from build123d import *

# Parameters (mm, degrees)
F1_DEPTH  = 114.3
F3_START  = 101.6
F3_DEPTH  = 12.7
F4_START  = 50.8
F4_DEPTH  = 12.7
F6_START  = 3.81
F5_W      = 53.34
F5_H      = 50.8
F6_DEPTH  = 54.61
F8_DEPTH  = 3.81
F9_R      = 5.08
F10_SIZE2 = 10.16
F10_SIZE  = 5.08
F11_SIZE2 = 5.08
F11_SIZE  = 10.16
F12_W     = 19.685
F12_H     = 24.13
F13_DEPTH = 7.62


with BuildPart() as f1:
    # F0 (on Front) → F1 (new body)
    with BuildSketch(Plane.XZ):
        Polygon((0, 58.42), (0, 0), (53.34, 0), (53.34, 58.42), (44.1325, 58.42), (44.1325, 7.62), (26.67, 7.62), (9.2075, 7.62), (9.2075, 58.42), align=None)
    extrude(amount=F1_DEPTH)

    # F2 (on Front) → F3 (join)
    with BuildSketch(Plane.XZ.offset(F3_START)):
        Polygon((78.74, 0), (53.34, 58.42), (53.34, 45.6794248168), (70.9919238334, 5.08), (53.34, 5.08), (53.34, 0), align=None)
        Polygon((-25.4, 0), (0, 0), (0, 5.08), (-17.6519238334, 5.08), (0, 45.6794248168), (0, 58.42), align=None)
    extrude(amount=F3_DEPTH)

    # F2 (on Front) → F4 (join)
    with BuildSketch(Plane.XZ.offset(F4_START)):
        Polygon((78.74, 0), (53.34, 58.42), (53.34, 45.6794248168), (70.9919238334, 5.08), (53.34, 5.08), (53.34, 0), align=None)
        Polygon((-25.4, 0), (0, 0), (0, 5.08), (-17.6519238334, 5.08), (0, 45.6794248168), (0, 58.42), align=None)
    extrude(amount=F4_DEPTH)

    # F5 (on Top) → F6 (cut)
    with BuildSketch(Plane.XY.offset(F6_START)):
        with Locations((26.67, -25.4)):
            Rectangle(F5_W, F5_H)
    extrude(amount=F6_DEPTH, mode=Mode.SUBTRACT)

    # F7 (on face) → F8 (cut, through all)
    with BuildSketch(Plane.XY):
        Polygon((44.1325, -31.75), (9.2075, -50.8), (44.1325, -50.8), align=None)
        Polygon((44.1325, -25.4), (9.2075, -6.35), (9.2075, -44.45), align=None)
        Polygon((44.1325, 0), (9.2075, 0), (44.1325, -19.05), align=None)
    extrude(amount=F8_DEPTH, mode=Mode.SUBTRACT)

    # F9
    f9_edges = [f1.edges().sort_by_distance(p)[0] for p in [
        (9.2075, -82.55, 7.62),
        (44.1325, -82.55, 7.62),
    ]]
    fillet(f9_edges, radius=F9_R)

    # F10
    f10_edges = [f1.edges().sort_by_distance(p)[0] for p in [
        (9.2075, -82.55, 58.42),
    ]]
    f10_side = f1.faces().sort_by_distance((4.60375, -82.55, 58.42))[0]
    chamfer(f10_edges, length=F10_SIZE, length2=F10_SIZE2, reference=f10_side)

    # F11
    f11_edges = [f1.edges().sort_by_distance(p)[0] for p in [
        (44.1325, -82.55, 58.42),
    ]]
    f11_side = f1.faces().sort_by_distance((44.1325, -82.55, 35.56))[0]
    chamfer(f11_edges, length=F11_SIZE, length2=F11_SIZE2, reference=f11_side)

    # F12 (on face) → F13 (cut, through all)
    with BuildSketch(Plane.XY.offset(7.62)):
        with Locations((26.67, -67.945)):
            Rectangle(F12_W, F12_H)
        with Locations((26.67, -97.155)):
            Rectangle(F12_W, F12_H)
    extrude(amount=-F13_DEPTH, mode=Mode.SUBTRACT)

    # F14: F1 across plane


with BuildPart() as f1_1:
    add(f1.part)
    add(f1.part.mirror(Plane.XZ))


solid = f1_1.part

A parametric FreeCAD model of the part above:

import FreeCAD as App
import Part
import Sketcher
from FreeCAD import Vector
Q = App.Units.Quantity


def edges_at(feature, points):
    """Names of the edges that pass closest to the given points."""
    edges = feature.Shape.Edges
    near = lambda p: min(range(len(edges)), key=lambda i: edges[i].distToShape(Part.Vertex(*p))[0])
    return sorted({f"Edge{near(p) + 1}" for p in points})


def add_polygon(sketch, points):
    """Adds a closed chain of lines whose ends are joined by coincident constraints."""
    first, n = sketch.GeometryCount, len(points)
    for a, b in zip(points, points[1:] + points[:1]):
        sketch.addGeometry(Part.LineSegment(App.Vector(*a, 0), App.Vector(*b, 0)), False)
    for i in range(n):
        sketch.addConstraint(Sketcher.Constraint("Coincident", first + i, 2, first + (i + 1) % n, 1))

doc = App.newDocument("Part")
body = doc.addObject("PartDesign::Body", "Body")

sketch1 = doc.addObject("Sketcher::SketchObject", "Sketch")
body.addObject(sketch1)
sketch1.AttachmentSupport = (doc.XZ_Plane, [""])
sketch1.MapMode = "FlatFace"
add_polygon(sketch1, [(0, 58), (0, 0), (53, 0), (53, 58), (44, 58), (44, 8), (9, 8), (9, 58)])
sketch1.addConstraint([
    Sketcher.Constraint("Vertical", 0),
    Sketcher.Constraint("Horizontal", 1),
    Sketcher.Constraint("Vertical", 2),
    Sketcher.Constraint("Horizontal", 3),
    Sketcher.Constraint("Vertical", 4),
    Sketcher.Constraint("Horizontal", 5),
    Sketcher.Constraint("Vertical", 6),
    Sketcher.Constraint("Horizontal", 7),
    Sketcher.Constraint("Coincident", 0, 2, -1, 1),
    Sketcher.Constraint("Horizontal", 3, 2, 6, 2),
    Sketcher.Constraint("Equal", 3, 7),
    Sketcher.Constraint("DistanceY", 4, 2, 4, 1, Q("2 in")),
    Sketcher.Constraint("DistanceX", 1, 1, 1, 2, Q("2.1 in")),
    Sketcher.Constraint("DistanceY", 0, 2, 0, 1, Q("2.3 in")),
    Sketcher.Constraint("DistanceX", 5, 2, 5, 1, Q("1.375 in")),
])
pad1 = doc.addObject("PartDesign::Pad", "Pad")
body.addObject(pad1)
pad1.Profile = sketch1
pad1.Length = Q("4.5 in")

sketch2 = doc.addObject("Sketcher::SketchObject", "Sketch001")
body.addObject(sketch2)
sketch2.AttachmentSupport = (doc.XZ_Plane, [""])
sketch2.MapMode = "FlatFace"
sketch2.AttachmentOffset = App.Placement(Vector(0, 0, 4 * 25.4), App.Rotation())
add_polygon(sketch2, [(79, 0), (53, 58), (53, 46), (71, 5), (53, 5), (53, 0)])
add_polygon(sketch2, [(-25, 0), (0, 0), (0, 5), (-18, 5), (0, 46), (0, 58)])
sketch2.addConstraint([
    Sketcher.Constraint("Vertical", 1),
    Sketcher.Constraint("Horizontal", 3),
    Sketcher.Constraint("Vertical", 4),
    Sketcher.Constraint("Horizontal", 5),
    Sketcher.Constraint("Horizontal", 6),
    Sketcher.Constraint("Vertical", 7),
    Sketcher.Constraint("Horizontal", 8),
    Sketcher.Constraint("Vertical", 10),
    Sketcher.Constraint("Coincident", 6, 2, -1, 1),
    Sketcher.Constraint("PointOnObject", 4, 2, -1),
    Sketcher.Constraint("PointOnObject", 9, 2, -2),
    Sketcher.Constraint("Parallel", 0, 2),
    Sketcher.Constraint("Parallel", 9, 11),
    Sketcher.Constraint("Horizontal", 3, 2, 7, 2),
    Sketcher.Constraint("Horizontal", 1, 2, 9, 2),
    Sketcher.Constraint("Horizontal", 0, 2, 10, 2),
    Sketcher.Constraint("Vertical", 1, 2, 3, 2),
    Sketcher.Constraint("Equal", 5, 6),
    Sketcher.Constraint("DistanceX", 5, 1, 5, 2, Q("1 in")),
    Sketcher.Constraint("DistanceY", 4, 2, 4, 1, Q("0.2 in")),
    Sketcher.Constraint("DistanceX", -1, 1, 0, 2, Q("2.1 in")),
    Sketcher.Constraint("DistanceY", -1, 1, 0, 2, Q("2.3 in")),
    Sketcher.Constraint("Distance", 2, 44.2708),
])
pad2 = doc.addObject("PartDesign::Pad", "Pad001")
body.addObject(pad2)
pad2.Profile = sketch2
pad2.Length = Q("0.5 in")

sketch3 = doc.addObject("Sketcher::SketchObject", "Sketch002")
body.addObject(sketch3)
sketch3.AttachmentSupport = (doc.XZ_Plane, [""])
sketch3.MapMode = "FlatFace"
sketch3.AttachmentOffset = App.Placement(Vector(0, 0, 2 * 25.4), App.Rotation())
add_polygon(sketch3, [(79, 0), (53, 58), (53, 46), (71, 5), (53, 5), (53, 0)])
add_polygon(sketch3, [(-25, 0), (0, 0), (0, 5), (-18, 5), (0, 46), (0, 58)])
sketch3.addConstraint([
    Sketcher.Constraint("Vertical", 1),
    Sketcher.Constraint("Horizontal", 3),
    Sketcher.Constraint("Vertical", 4),
    Sketcher.Constraint("Horizontal", 5),
    Sketcher.Constraint("Horizontal", 6),
    Sketcher.Constraint("Vertical", 7),
    Sketcher.Constraint("Horizontal", 8),
    Sketcher.Constraint("Vertical", 10),
    Sketcher.Constraint("Coincident", 6, 2, -1, 1),
    Sketcher.Constraint("PointOnObject", 4, 2, -1),
    Sketcher.Constraint("PointOnObject", 9, 2, -2),
    Sketcher.Constraint("Parallel", 0, 2),
    Sketcher.Constraint("Parallel", 9, 11),
    Sketcher.Constraint("Horizontal", 3, 2, 7, 2),
    Sketcher.Constraint("Horizontal", 1, 2, 9, 2),
    Sketcher.Constraint("Horizontal", 0, 2, 10, 2),
    Sketcher.Constraint("Vertical", 1, 2, 3, 2),
    Sketcher.Constraint("Equal", 5, 6),
    Sketcher.Constraint("DistanceX", 5, 1, 5, 2, Q("1 in")),
    Sketcher.Constraint("DistanceY", 4, 2, 4, 1, Q("0.2 in")),
    Sketcher.Constraint("DistanceX", -1, 1, 0, 2, Q("2.1 in")),
    Sketcher.Constraint("DistanceY", -1, 1, 0, 2, Q("2.3 in")),
    Sketcher.Constraint("Distance", 2, 44.2708),
])
pad3 = doc.addObject("PartDesign::Pad", "Pad002")
body.addObject(pad3)
pad3.Profile = sketch3
pad3.Length = Q("0.5 in")

sketch4 = doc.addObject("Sketcher::SketchObject", "Sketch003")
body.addObject(sketch4)
sketch4.AttachmentSupport = (doc.XY_Plane, [""])
sketch4.MapMode = "FlatFace"
sketch4.AttachmentOffset = App.Placement(Vector(0, 0, 0.15 * 25.4), App.Rotation())
add_polygon(sketch4, [(0, 0), (0, -51), (53, -51), (53, 0)])
sketch4.addConstraint([
    Sketcher.Constraint("Vertical", 0),
    Sketcher.Constraint("Horizontal", 1),
    Sketcher.Constraint("Vertical", 2),
    Sketcher.Constraint("Horizontal", 3),
    Sketcher.Constraint("Coincident", 3, 2, -1, 1),
    Sketcher.Constraint("DistanceY", 0, 2, 0, 1, Q("2 in")),
    Sketcher.Constraint("DistanceX", 1, 1, 1, 2, Q("2.1 in")),
])
pocket1 = doc.addObject("PartDesign::Pocket", "Pocket")
body.addObject(pocket1)
pocket1.Profile = sketch4
pocket1.Length = Q("2.15 in")
pocket1.Reversed = True

sketch5 = doc.addObject("Sketcher::SketchObject", "Sketch004")
body.addObject(sketch5)
sketch5.AttachmentSupport = (doc.XY_Plane, [""])
sketch5.MapMode = "FlatFace"
add_polygon(sketch5, [(44, -32), (9, -51), (44, -51)])
add_polygon(sketch5, [(44, -25), (9, -6), (9, -44)])
add_polygon(sketch5, [(44, 0), (9, 0), (44, -19)])
sketch5.addConstraint([
    Sketcher.Constraint("Horizontal", 1),
    Sketcher.Constraint("Vertical", 2),
    Sketcher.Constraint("Vertical", 4),
    Sketcher.Constraint("Horizontal", 6),
    Sketcher.Constraint("Vertical", 8),
    Sketcher.Constraint("PointOnObject", 6, 2, -1),
    Sketcher.Constraint("Parallel", 0, 5),
    Sketcher.Constraint("Parallel", 3, 7),
    Sketcher.Constraint("Vertical", 0, 2, 3, 2),
    Sketcher.Constraint("Vertical", 2, 2, 5, 2),
    Sketcher.Constraint("Vertical", 4, 2, 6, 2),
    Sketcher.Constraint("Vertical", 5, 2, 7, 2),
    Sketcher.Constraint("Equal", 2, 8),
    Sketcher.Constraint("DistanceY", 4, 2, 4, 1, Q("1.5 in")),
    Sketcher.Constraint("DistanceY", 0, 2, -1, 1, Q("2 in")),
    Sketcher.Constraint("DistanceY", 5, 2, -1, 1, Q("1 in")),
    Sketcher.Constraint("DistanceX", 1, 1, 1, 2, Q("1.375 in")),
    Sketcher.Constraint("DistanceX", -1, 1, 0, 2, Q("0.3625 in")),
])
pocket2 = doc.addObject("PartDesign::Pocket", "Pocket001")
body.addObject(pocket2)
pocket2.Profile = sketch5
pocket2.Type = "ThroughAll"
pocket2.Reversed = True
doc.recompute()

fillet = doc.addObject("PartDesign::Fillet", "Fillet")
body.addObject(fillet)
fillet.Base = (pocket2, edges_at(pocket2, [(9.207, -82.55, 7.62), (44.133, -82.55, 7.62)]))
fillet.Radius = Q("0.2 in")
doc.recompute()

chamfer = doc.addObject("PartDesign::Chamfer", "Chamfer")
body.addObject(chamfer)
chamfer.Base = (fillet, edges_at(fillet, [(9.207, -82.55, 58.42)]))
chamfer.ChamferType = "Two distances"
chamfer.Size = Q("0.2 in")
chamfer.Size2 = Q("0.4 in")
chamfer.FlipDirection = True
doc.recompute()

chamfer2 = doc.addObject("PartDesign::Chamfer", "Chamfer001")
body.addObject(chamfer2)
chamfer2.Base = (chamfer, edges_at(chamfer, [(44.133, -82.55, 58.42)]))
chamfer2.ChamferType = "Two distances"
chamfer2.Size = Q("0.4 in")
chamfer2.Size2 = Q("0.2 in")

sketch6 = doc.addObject("Sketcher::SketchObject", "Sketch005")
body.addObject(sketch6)
sketch6.AttachmentSupport = (doc.XY_Plane, [""])
sketch6.MapMode = "FlatFace"
sketch6.AttachmentOffset = App.Placement(Vector(0, 0, 0.3 * 25.4), App.Rotation())
add_polygon(sketch6, [(17, -56), (17, -80), (37, -80), (37, -56)])
add_polygon(sketch6, [(17, -85), (17, -109), (37, -109), (37, -85)])
sketch6.addConstraint([
    Sketcher.Constraint("Vertical", 0),
    Sketcher.Constraint("Horizontal", 1),
    Sketcher.Constraint("Vertical", 2),
    Sketcher.Constraint("Horizontal", 3),
    Sketcher.Constraint("Vertical", 4),
    Sketcher.Constraint("Horizontal", 5),
    Sketcher.Constraint("Vertical", 6),
    Sketcher.Constraint("Horizontal", 7),
    Sketcher.Constraint("Vertical", 3, 2, 4, 2),
    Sketcher.Constraint("Vertical", 2, 2, 5, 2),
    Sketcher.Constraint("Equal", 2, 4),
    Sketcher.Constraint("DistanceY", 0, 2, 0, 1, Q("0.95 in")),
    Sketcher.Constraint("DistanceY", 2, 2, -1, 1, Q("2.2 in")),
    Sketcher.Constraint("DistanceY", 4, 2, -1, 1, Q("4.3 in")),
    Sketcher.Constraint("DistanceX", 1, 1, 1, 2, Q("0.775 in")),
    Sketcher.Constraint("DistanceX", -1, 1, 1, 2, Q("1.4375 in")),
])
pocket3 = doc.addObject("PartDesign::Pocket", "Pocket002")
body.addObject(pocket3)
pocket3.Profile = sketch6
pocket3.Type = "ThroughAll"
body2 = doc.addObject("PartDesign::Body", "Body001")
doc.recompute()

body2.BaseFeature = body
doc.recompute()

mirroring = doc.addObject("Part::Mirroring", "Mirroring")
mirroring.Source = body
mirroring.Base = Vector(0, 0, 0)
mirroring.Normal = Vector(0, -1, 0)
body3 = doc.addObject("PartDesign::Body", "Body002")
body3.BaseFeature = mirroring
boolean = doc.addObject("PartDesign::Boolean", "Boolean")
body2.addObject(boolean)
boolean.Type = "Fuse"
boolean.addObjects([body3])
doc.recompute()
mirroring.Visibility = False

doc.recompute()
